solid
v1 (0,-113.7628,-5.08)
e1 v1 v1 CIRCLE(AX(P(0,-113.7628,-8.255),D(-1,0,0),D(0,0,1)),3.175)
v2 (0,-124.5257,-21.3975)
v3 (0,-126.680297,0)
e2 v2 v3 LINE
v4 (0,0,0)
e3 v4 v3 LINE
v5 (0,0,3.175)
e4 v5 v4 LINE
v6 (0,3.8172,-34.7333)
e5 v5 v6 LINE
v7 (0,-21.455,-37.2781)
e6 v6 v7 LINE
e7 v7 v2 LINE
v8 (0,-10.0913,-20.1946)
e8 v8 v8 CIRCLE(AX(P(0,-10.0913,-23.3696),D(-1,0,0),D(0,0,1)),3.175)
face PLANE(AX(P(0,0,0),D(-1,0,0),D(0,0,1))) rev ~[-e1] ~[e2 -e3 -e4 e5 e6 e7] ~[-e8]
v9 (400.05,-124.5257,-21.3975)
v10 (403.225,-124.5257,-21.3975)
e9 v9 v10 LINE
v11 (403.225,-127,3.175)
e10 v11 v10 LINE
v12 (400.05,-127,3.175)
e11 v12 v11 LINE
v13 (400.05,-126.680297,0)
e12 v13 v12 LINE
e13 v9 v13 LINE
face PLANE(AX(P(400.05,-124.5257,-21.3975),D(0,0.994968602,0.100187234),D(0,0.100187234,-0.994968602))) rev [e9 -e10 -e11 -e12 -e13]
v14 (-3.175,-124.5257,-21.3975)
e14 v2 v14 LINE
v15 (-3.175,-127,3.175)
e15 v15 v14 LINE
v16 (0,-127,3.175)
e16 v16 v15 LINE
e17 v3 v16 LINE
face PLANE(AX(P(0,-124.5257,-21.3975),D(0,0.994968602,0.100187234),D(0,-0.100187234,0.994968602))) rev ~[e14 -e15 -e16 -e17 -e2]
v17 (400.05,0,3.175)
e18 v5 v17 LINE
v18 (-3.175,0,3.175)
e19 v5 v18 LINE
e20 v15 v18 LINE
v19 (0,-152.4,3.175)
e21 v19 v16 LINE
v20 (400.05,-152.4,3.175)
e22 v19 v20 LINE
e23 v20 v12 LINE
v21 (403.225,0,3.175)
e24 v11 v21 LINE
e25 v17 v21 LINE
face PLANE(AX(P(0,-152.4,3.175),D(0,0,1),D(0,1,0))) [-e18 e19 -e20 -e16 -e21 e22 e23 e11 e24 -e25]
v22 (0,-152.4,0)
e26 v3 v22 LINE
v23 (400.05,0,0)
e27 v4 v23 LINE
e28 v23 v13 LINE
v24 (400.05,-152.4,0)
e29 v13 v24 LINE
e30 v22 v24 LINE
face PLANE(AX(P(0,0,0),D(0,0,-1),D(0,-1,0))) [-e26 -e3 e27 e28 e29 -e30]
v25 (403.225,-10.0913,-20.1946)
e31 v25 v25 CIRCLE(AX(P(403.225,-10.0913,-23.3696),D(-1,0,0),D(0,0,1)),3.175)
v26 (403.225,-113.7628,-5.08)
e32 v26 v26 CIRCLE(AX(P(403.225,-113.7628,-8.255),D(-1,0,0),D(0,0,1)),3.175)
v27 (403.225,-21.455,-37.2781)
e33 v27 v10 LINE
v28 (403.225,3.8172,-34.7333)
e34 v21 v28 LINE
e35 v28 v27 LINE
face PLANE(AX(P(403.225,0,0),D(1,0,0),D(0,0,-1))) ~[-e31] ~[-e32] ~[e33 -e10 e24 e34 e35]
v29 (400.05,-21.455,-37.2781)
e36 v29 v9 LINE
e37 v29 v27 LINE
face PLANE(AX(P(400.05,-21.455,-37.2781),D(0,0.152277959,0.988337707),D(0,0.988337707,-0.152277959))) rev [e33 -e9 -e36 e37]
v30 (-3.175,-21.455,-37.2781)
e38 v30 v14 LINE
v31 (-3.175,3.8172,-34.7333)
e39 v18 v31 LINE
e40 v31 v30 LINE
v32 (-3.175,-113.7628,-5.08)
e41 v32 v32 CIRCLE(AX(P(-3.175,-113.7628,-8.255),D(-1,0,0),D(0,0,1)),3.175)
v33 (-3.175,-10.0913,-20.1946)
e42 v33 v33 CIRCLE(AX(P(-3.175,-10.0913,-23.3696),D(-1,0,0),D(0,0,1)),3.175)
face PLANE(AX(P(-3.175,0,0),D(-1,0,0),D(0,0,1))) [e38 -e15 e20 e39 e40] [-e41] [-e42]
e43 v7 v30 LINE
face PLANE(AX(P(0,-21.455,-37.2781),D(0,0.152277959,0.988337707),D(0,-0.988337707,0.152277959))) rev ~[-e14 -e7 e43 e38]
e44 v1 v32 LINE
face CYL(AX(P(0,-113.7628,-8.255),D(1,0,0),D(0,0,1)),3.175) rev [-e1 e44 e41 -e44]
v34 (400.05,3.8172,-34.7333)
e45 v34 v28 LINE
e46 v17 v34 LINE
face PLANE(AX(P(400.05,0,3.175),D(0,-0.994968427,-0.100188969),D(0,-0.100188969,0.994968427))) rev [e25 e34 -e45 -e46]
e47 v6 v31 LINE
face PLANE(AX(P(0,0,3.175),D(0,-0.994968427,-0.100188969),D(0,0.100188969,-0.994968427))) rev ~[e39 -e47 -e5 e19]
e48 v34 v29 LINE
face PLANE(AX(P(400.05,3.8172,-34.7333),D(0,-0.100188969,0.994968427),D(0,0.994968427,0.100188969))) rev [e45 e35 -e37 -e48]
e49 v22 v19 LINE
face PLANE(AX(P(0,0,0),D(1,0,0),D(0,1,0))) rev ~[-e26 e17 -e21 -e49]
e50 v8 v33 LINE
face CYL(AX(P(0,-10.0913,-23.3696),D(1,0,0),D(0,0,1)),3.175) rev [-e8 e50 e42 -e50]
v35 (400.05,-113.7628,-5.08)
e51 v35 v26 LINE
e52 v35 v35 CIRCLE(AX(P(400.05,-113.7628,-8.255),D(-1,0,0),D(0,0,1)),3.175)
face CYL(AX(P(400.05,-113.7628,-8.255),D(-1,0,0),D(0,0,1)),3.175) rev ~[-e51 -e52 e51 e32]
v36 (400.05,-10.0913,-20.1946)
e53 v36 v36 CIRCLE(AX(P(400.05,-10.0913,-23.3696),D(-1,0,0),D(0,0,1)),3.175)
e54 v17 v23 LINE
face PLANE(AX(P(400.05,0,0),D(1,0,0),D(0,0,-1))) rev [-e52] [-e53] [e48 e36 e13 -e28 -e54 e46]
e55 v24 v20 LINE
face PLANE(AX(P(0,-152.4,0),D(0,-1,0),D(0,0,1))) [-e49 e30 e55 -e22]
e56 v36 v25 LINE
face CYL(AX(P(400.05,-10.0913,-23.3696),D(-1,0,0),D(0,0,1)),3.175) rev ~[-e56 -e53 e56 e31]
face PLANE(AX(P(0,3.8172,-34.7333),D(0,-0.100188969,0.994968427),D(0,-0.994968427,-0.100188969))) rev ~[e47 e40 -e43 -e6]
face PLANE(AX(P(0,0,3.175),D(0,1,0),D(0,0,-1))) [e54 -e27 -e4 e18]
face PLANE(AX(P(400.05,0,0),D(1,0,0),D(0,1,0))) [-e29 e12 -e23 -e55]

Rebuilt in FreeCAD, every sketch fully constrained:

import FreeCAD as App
import Part
import Sketcher
Q = App.Units.Quantity

doc = App.newDocument("Part")
params = doc.addObject("Spreadsheet::Sheet", "Params")
for row, (alias, value) in enumerate([
    ("sketch1_width", "6 in"),
    ("sketch1_height", "0.125 in"),
    ("pad1_length", "15.75 in"),
    ("sketch2_diameter", "0.25 in"),
    ("sketch2_width", "5 in"),
    ("sketch2_length", "1 in"),
    ("sketch2_length2", "1.5 in"),
    ("pad2_length", "0.125 in"),
], start=1):
    params.set(f"A{row}", alias)
    params.set(f"B{row}", "=" + value)
    params.setAlias(f"B{row}", alias)

body = doc.addObject("PartDesign::Body", "Body")

sketch1 = body.newObject("Sketcher::SketchObject", "Sketch")
sketch1.AttachmentSupport = (doc.getObject("YZ_Plane"), [""])
sketch1.MapMode = "FlatFace"
sketch1.addGeometry(Part.LineSegment(App.Vector(-152.4, 0, 0), App.Vector(0, 0, 0)), False)
sketch1.addGeometry(Part.LineSegment(App.Vector(0, 0, 0), App.Vector(0, 3.2, 0)), False)
sketch1.addGeometry(Part.LineSegment(App.Vector(0, 3.2, 0), App.Vector(-152.4, 3.2, 0)), False)
sketch1.addGeometry(Part.LineSegment(App.Vector(-152.4, 3.2, 0), App.Vector(-152.4, 0, 0)), False)
sketch1.addConstraint(Sketcher.Constraint("Coincident", 0, 2, 1, 1))
sketch1.addConstraint(Sketcher.Constraint("Coincident", 1, 2, 2, 1))
sketch1.addConstraint(Sketcher.Constraint("Coincident", 2, 2, 3, 1))
sketch1.addConstraint(Sketcher.Constraint("Coincident", 3, 2, 0, 1))
sketch1.addConstraint(Sketcher.Constraint("Horizontal", 0))
sketch1.addConstraint(Sketcher.Constraint("Vertical", 1))
sketch1.addConstraint(Sketcher.Constraint("Horizontal", 2))
sketch1.addConstraint(Sketcher.Constraint("Vertical", 3))
sketch1.addConstraint(Sketcher.Constraint("Coincident", 0, 2, -1, 1))
sketch1.addConstraint(Sketcher.Constraint("DistanceX", 0, 1, 0, 2, Q("6 in")))
sketch1.addConstraint(Sketcher.Constraint("DistanceY", 1, 1, 1, 2, Q("0.125 in")))
sketch1.setExpression("Constraints[9]", "Params.sketch1_width")
sketch1.setExpression("Constraints[10]", "Params.sketch1_height")
pad1 = body.newObject("PartDesign::Pad", "Pad")
pad1.Profile = sketch1
pad1.setExpression("Length", "Params.pad1_length")

sketch2 = body.newObject("Sketcher::SketchObject", "Sketch001")
sketch2.AttachmentSupport = (doc.getObject("YZ_Plane"), [""])
sketch2.MapMode = "FlatFace"
sketch2.addGeometry(Part.LineSegment(App.Vector(-124.5, -21.4, 0), App.Vector(-127, 3.2, 0)), False)
sketch2.addGeometry(Part.LineSegment(App.Vector(-127, 3.2, 0), App.Vector(0, 3.2, 0)), False)
sketch2.addGeometry(Part.LineSegment(App.Vector(0, 3.2, 0), App.Vector(3.8, -34.7, 0)), False)
sketch2.addGeometry(Part.LineSegment(App.Vector(3.8, -34.7, 0), App.Vector(-21.5, -37.3, 0)), False)
sketch2.addGeometry(Part.LineSegment(App.Vector(-21.5, -37.3, 0), App.Vector(-124.5, -21.4, 0)), False)
sketch2.addGeometry(Part.Circle(App.Vector(-113.8, -8.3, 0), App.Vector(0, 0, 1), 3.2), False)
sketch2.addGeometry(Part.Circle(App.Vector(-10.1, -23.4, 0), App.Vector(0, 0, 1), 3.2), False)
sketch2.addConstraint(Sketcher.Constraint("Coincident", 0, 2, 1, 1))
sketch2.addConstraint(Sketcher.Constraint("Coincident", 1, 2, 2, 1))
sketch2.addConstraint(Sketcher.Constraint("Coincident", 2, 2, 3, 1))
sketch2.addConstraint(Sketcher.Constraint("Coincident", 3, 2, 4, 1))
sketch2.addConstraint(Sketcher.Constraint("Coincident", 4, 2, 0, 1))
sketch2.addConstraint(Sketcher.Constraint("Horizontal", 1))
sketch2.addConstraint(Sketcher.Constraint("Equal", 5, 6))
sketch2.addConstraint(Sketcher.Constraint("PointOnObject", 1, 2, -2))
sketch2.addConstraint(Sketcher.Constraint("Parallel", 0, 2))
sketch2.addConstraint(Sketcher.Constraint("Perpendicular", 2, 3))
sketch2.addConstraint(Sketcher.Constraint("Diameter", 5, Q("0.25 in")))
sketch2.addConstraint(Sketcher.Constraint("DistanceX", 1, 1, 1, 2, Q("5 in")))
sketch2.addConstraint(Sketcher.Constraint("Distance", 3, Q("1 in")))
sketch2.addConstraint(Sketcher.Constraint("Distance", 2, Q("1.5 in")))
sketch2.addConstraint(Sketcher.Constraint("Angle", 0, Q("95.75 deg")))
sketch2.addConstraint(Sketcher.Constraint("DistanceY", 5, 3, 0, 2, Q("0.45 in")))
sketch2.addConstraint(Sketcher.Constraint("Distance", 4, Q("104.287 mm")))
sketch2.addConstraint(Sketcher.Constraint("DistanceY", 5, 3, -1, 1, Q("0.325 in")))
sketch2.addConstraint(Sketcher.Constraint("DistanceX", 6, 3, -1, 1, Q("0.3973 in")))
sketch2.addConstraint(Sketcher.Constraint("DistanceY", 2, 2, 6, 3, Q("0.4474 in")))
sketch2.addConstraint(Sketcher.Constraint("DistanceX", 5, 3, -1, 1, Q("113.7628 mm")))
sketch2.setExpression("Constraints[10]", "Params.sketch2_diameter")
sketch2.setExpression("Constraints[11]", "Params.sketch2_width")
sketch2.setExpression("Constraints[12]", "Params.sketch2_length")
sketch2.setExpression("Constraints[13]", "Params.sketch2_length2")
pad2 = body.newObject("PartDesign::Pad", "Pad001")
pad2.Profile = sketch2
pad2.setExpression("Length", "Params.pad2_length")
pad2.Reversed = True
doc.recompute()

datumplane = body.newObject("PartDesign::Plane", "DatumPlane")
datumplane.AttachmentSupport = (doc.getObject("YZ_Plane"), [""])
datumplane.MapMode = "FlatFace"
datumplane.AttachmentOffset = App.Placement(App.Vector(0, 0, 7.875 * 25.4), App.Rotation())
mirrored = body.newObject("PartDesign::Mirrored", "Mirrored")
mirrored.Originals = [pad2]
mirrored.MirrorPlane = (datumplane, [""])
body.Tip = mirrored

doc.recompute()
